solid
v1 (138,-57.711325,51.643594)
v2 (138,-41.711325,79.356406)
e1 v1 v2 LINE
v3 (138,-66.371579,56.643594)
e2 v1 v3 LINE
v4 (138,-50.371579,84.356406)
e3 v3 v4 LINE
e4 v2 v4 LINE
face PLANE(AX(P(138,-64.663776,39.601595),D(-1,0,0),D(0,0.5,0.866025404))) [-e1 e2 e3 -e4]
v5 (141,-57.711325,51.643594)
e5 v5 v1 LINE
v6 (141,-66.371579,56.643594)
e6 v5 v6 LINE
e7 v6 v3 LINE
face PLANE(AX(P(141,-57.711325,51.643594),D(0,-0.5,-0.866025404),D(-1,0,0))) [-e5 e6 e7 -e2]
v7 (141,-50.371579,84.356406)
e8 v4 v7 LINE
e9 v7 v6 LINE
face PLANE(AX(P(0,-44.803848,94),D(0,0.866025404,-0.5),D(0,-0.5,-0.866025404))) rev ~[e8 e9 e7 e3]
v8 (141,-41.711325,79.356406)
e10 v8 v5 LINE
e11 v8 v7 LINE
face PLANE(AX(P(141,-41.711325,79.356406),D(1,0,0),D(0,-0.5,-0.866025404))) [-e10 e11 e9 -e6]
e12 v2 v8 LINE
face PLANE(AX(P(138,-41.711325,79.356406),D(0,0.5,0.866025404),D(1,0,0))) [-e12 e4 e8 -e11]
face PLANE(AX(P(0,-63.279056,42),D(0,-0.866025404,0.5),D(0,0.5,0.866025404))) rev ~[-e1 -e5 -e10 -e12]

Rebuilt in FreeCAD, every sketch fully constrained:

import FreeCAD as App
import Part
import Sketcher
Q = App.Units.Quantity


def add_polygon(sketch, points):
    """Adds a closed chain of lines whose ends are joined by coincident constraints."""
    first, n = sketch.GeometryCount, len(points)
    for a, b in zip(points, points[1:] + points[:1]):
        sketch.addGeometry(Part.LineSegment(App.Vector(*a, 0), App.Vector(*b, 0)), False)
    for i in range(n):
        sketch.addConstraint(Sketcher.Constraint("Coincident", first + i, 2, first + (i + 1) % n, 1))

doc = App.newDocument("Part")
body = doc.addObject("PartDesign::Body", "Body")

# Sketch on YZ plane
sketch1 = body.newObject("Sketcher::SketchObject", "Sketch")
sketch1.AttachmentSupport = (doc.getObject("YZ_Plane"), [""])
sketch1.MapMode = "FlatFace"
add_polygon(sketch1, [(-71.93931, 47), (-63.279056, 42), (-36.143594, 89), (-44.803848, 94)])  # lines 0-3
sketch1.addConstraint([
    Sketcher.Constraint("Perpendicular", 0, 1),
    Sketcher.Constraint("Perpendicular", 1, 2),
    Sketcher.Constraint("Perpendicular", 2, 3),
    Sketcher.Constraint("Angle", 0, Q("-30 deg")),
    Sketcher.Constraint("Distance", 0, Q("10 mm")),
    Sketcher.Constraint("DistanceY", -1, 1, 0, 2, Q("42 mm")),
    Sketcher.Constraint("DistanceY", -1, 1, 1, 2, Q("89 mm")),
    Sketcher.Constraint("DistanceX", 3, 2, -1, 1, Q("71.93931 mm")),
])
pad1 = body.newObject("PartDesign::Pad", "Pad")
pad1.Profile = sketch1
pad1.Length = 148

# Sketch on an angled plane
sketch2 = body.newObject("Sketcher::SketchObject", "Sketch001")
sketch2.Placement = App.Placement(App.Vector(0, -65.645826, 37.900635), App.Rotation(App.Vector(0, 0.5, 0.866025404), App.Vector(1, 0, 0), App.Vector(0, 0.866025404, -0.5), "ZXY"))
add_polygon(sketch2, [(1.964099, 138), (1.964099, 0), (68.533711, 0), (68.533711, 138)])  # lines 0-3
sketch2.addConstraint([
    Sketcher.Constraint("Vertical", 0),
    Sketcher.Constraint("Horizontal", 1),
    Sketcher.Constraint("Vertical", 2),
    Sketcher.Constraint("Horizontal", 3),
    Sketcher.Constraint("PointOnObject", 0, 2, -1),
    Sketcher.Constraint("DistanceY", 0, 2, 0, 1, Q("138 mm")),
    Sketcher.Constraint("DistanceX", -1, 1, 0, 2, Q("1.964099 mm")),
    Sketcher.Constraint("DistanceX", 1, 1, 1, 2, Q("66.569612 mm")),
])
pocket1 = body.newObject("PartDesign::Pocket", "Pocket")
pocket1.Profile = sketch2
pocket1.Type = "ThroughAll"

# Sketch on an angled plane
sketch3 = body.newObject("Sketcher::SketchObject", "Sketch002")
sketch3.Placement = App.Placement(App.Vector(0, -65.645826, 37.900635), App.Rotation(App.Vector(0, 0.5, 0.866025404), App.Vector(1, 0, 0), App.Vector(0, 0.866025404, -0.5), "ZXY"))
add_polygon(sketch3, [(4.733539, 148), (4.733539, 138), (15.869002, 138), (15.869002, 141), (47.869002, 141), (47.869002, 138), (59.004464, 138), (59.004464, 148)])  # lines 0-7
sketch3.addConstraint([
    Sketcher.Constraint("Vertical", 0),
    Sketcher.Constraint("Horizontal", 1),
    Sketcher.Constraint("Vertical", 2),
    Sketcher.Constraint("Horizontal", 3),
    Sketcher.Constraint("Vertical", 4),
    Sketcher.Constraint("Horizontal", 5),
    Sketcher.Constraint("Vertical", 6),
    Sketcher.Constraint("Horizontal", 7),
    Sketcher.Constraint("Horizontal", 1, 2, 4, 2),
    Sketcher.Constraint("Equal", 1, 5),
    Sketcher.Constraint("DistanceX", 3, 1, 3, 2, Q("32 mm")),
    Sketcher.Constraint("DistanceY", 0, 2, 0, 1, Q("10 mm")),
    Sketcher.Constraint("DistanceY", 2, 1, 2, 2, Q("3 mm")),
    Sketcher.Constraint("DistanceY", -1, 1, 0, 2, Q("138 mm")),
    Sketcher.Constraint("DistanceX", -1, 1, 1, 2, Q("15.869002 mm")),
    Sketcher.Constraint("DistanceX", 1, 1, 1, 2, Q("11.135463 mm")),
])
pocket2 = body.newObject("PartDesign::Pocket", "Pocket001")
pocket2.Profile = sketch3
pocket2.Type = "ThroughAll"

doc.recompute()
